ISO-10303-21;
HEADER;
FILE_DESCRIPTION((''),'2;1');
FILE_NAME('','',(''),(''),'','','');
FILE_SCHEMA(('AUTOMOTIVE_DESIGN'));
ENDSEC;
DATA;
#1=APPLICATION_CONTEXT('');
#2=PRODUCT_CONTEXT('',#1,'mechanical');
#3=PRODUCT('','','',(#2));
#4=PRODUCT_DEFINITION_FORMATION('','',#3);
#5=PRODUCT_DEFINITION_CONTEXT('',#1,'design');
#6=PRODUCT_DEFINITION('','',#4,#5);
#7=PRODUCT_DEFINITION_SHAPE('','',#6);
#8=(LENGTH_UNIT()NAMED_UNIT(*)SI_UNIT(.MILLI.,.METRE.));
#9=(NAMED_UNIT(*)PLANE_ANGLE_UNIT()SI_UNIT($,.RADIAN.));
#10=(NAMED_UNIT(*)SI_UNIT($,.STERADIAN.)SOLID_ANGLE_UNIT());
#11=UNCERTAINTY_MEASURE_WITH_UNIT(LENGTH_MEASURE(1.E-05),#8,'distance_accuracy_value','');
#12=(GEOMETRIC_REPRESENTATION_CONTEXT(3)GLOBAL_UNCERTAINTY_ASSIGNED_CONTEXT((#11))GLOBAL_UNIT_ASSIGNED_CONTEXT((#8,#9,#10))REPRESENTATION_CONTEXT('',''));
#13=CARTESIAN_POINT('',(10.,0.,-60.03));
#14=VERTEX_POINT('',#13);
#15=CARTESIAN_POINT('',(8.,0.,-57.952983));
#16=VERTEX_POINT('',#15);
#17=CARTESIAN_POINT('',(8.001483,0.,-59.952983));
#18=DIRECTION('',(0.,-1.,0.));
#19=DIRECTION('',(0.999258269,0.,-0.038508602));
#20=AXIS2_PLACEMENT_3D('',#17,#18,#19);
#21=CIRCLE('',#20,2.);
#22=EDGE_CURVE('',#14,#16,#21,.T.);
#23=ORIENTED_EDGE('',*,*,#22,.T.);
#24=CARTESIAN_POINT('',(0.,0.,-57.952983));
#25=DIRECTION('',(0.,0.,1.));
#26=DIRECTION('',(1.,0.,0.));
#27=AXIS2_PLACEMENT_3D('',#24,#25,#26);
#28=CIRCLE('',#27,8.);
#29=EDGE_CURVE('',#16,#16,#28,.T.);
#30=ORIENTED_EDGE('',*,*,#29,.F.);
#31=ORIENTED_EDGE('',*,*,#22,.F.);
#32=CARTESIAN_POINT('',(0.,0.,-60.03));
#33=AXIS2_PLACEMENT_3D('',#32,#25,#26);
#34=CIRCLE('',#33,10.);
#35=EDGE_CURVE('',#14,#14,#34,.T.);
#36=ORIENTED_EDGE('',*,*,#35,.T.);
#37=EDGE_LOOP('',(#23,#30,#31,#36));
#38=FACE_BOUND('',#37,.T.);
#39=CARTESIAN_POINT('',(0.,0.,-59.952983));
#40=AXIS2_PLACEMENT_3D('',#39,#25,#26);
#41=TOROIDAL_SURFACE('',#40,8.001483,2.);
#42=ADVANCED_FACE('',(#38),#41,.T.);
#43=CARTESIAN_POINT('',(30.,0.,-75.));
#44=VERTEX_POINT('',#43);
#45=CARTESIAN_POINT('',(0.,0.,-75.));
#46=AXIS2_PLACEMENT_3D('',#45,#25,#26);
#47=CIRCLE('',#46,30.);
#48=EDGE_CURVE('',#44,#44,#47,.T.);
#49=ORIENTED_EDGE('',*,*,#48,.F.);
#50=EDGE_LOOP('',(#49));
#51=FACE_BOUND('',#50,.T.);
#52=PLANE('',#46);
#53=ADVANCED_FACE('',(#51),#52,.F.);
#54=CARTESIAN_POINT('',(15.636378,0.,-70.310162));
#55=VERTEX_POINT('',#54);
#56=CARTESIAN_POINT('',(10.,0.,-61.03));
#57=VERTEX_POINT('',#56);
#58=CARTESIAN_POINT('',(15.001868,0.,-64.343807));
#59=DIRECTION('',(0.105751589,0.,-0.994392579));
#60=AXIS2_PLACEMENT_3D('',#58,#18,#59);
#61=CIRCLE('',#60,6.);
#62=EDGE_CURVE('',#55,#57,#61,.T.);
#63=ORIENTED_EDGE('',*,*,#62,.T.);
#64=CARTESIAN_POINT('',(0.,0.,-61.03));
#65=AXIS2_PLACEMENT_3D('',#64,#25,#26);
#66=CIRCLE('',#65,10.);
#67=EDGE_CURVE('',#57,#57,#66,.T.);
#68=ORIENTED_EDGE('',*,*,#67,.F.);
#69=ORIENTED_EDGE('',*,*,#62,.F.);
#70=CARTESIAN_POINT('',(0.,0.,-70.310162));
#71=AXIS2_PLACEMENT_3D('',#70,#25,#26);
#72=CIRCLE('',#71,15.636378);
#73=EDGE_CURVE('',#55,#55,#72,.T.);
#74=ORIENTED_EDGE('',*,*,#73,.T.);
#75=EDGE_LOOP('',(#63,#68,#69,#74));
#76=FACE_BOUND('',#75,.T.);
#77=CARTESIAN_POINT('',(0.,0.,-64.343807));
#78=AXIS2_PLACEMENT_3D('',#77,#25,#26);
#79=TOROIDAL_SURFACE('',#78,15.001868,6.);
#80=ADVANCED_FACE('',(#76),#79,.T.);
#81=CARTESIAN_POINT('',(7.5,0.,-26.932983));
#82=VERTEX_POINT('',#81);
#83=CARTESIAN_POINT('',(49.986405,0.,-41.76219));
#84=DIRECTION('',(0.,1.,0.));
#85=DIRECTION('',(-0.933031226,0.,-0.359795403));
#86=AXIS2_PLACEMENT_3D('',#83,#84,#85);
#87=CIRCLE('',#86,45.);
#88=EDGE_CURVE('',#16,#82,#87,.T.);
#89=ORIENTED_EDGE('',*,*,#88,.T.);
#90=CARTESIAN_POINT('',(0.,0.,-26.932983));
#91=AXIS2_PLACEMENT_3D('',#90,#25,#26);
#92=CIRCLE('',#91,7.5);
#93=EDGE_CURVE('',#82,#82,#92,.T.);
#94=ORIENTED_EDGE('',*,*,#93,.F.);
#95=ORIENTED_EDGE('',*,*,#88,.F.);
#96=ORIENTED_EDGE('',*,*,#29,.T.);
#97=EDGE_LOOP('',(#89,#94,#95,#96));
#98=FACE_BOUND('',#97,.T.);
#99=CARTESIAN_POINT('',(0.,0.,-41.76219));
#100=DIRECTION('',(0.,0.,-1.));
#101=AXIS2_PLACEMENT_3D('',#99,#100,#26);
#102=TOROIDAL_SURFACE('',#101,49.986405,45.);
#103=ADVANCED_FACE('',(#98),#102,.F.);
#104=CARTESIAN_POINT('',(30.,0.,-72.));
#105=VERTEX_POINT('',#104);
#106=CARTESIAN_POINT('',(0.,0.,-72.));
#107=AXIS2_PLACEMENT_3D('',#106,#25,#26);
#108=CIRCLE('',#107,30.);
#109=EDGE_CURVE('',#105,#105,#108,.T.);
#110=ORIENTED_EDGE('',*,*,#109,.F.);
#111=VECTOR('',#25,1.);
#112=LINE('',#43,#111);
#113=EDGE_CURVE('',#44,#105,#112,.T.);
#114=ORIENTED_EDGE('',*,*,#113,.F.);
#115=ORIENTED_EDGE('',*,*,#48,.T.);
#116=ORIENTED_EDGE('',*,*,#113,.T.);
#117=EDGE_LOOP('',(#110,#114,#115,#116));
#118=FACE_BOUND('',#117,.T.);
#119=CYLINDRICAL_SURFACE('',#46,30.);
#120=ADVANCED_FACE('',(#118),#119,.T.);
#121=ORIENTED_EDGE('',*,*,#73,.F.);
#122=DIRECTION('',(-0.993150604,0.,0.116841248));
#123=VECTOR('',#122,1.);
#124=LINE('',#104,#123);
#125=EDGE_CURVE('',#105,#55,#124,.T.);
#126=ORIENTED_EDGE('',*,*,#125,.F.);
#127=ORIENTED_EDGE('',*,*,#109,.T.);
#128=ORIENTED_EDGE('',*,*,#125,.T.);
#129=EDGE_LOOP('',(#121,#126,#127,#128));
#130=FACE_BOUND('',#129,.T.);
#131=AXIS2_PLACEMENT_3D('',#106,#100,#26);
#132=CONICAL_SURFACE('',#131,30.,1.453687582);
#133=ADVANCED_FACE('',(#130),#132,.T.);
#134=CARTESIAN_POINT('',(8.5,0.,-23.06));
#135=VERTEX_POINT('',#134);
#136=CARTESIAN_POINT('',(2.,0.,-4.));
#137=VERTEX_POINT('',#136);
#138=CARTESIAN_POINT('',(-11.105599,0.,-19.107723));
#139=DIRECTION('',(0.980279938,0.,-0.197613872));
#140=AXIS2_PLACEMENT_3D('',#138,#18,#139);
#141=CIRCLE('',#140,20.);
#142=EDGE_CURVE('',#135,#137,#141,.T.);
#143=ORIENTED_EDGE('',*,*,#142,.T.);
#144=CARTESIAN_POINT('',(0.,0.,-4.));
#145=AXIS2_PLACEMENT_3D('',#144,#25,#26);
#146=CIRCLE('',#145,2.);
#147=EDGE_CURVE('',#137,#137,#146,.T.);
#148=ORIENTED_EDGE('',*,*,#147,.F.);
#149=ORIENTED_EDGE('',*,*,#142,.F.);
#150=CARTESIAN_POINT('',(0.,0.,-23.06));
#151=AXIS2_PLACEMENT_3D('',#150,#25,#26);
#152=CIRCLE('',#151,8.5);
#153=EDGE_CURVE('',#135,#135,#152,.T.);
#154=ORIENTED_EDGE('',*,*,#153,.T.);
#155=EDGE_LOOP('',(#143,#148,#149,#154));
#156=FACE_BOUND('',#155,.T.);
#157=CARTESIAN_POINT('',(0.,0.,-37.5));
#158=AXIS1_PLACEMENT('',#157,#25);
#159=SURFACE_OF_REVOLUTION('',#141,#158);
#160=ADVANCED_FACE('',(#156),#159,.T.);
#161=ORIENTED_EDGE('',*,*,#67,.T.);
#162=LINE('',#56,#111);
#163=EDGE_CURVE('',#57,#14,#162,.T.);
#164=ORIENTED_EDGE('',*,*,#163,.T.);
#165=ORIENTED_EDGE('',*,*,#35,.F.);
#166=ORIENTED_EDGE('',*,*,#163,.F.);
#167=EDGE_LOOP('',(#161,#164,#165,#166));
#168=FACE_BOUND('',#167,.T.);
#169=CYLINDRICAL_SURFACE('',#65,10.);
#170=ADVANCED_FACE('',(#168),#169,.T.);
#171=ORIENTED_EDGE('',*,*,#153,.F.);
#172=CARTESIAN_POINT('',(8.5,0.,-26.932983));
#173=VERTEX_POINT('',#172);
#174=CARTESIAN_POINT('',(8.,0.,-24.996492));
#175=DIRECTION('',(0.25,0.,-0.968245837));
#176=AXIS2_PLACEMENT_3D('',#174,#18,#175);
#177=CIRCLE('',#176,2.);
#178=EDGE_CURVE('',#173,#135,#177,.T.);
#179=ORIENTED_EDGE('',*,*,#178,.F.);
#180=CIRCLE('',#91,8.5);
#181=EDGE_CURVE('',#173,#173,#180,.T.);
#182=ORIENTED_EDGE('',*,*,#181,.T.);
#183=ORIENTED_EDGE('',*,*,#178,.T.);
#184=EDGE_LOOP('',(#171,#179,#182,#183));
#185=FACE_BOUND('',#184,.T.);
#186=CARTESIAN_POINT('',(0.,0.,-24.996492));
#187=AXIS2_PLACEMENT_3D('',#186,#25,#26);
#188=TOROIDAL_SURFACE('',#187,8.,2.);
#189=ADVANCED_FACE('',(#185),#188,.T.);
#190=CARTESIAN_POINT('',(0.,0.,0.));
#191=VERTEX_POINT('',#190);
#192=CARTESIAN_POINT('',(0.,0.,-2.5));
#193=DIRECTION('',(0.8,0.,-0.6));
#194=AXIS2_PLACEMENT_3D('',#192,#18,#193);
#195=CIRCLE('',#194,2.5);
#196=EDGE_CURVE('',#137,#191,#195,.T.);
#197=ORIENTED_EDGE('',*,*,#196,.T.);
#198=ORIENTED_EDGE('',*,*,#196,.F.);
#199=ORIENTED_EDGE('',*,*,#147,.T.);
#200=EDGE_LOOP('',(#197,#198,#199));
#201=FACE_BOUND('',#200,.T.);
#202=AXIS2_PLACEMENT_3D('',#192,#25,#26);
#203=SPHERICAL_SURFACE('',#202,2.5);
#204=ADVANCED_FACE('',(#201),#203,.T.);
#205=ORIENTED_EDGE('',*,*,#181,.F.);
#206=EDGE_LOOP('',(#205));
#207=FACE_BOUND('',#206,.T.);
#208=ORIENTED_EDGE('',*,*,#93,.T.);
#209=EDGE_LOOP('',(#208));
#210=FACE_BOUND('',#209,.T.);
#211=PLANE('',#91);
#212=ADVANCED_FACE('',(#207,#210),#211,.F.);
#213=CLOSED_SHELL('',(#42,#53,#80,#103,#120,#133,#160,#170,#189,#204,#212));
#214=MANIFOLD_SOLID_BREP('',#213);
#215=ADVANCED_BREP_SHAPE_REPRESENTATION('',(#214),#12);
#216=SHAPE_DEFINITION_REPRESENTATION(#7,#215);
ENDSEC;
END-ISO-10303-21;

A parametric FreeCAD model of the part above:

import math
import FreeCAD as App
import Part
import Sketcher

V = App.Vector
Q = App.Units.Quantity

doc = App.newDocument("Part")
body = doc.addObject("PartDesign::Body", "Body")

sketch1 = body.newObject("Sketcher::SketchObject", "Sketch")
sketch1.AttachmentSupport = (doc.getObject("XZ_Plane"), [""])
sketch1.MapMode = "FlatFace"
sketch1.addGeometry([
    Part.LineSegment(V(7.5, -26.9, 0), V(8.5, -26.9, 0)),
    Part.ArcOfCircle(Part.Circle(V(8, -25, 0), V(0, 0, 1), 2), math.radians(-76), math.radians(76)),
    Part.ArcOfCircle(Part.Circle(V(-11.1, -19.1, 0), V(0, 0, 1), 20), math.radians(-11), math.radians(49)),
    Part.ArcOfCircle(Part.Circle(V(0, -2.5, 0), V(0, 0, 1), 2.5), math.radians(-37), math.radians(90)),
    Part.LineSegment(V(0, 0, 0), V(0, -75, 0)),
    Part.LineSegment(V(0, -75, 0), V(30, -75, 0)),
    Part.LineSegment(V(30, -75, 0), V(30, -72, 0)),
    Part.LineSegment(V(30, -72, 0), V(15.6, -70.3, 0)),
    Part.ArcOfCircle(Part.Circle(V(15, -64.3, 0), V(0, 0, 1), 6), math.radians(-84), math.radians(146)),
    Part.LineSegment(V(10, -61, 0), V(10, -60, 0)),
    Part.ArcOfCircle(Part.Circle(V(8, -60, 0), V(0, 0, 1), 2), math.radians(-2), math.radians(90)),
    Part.ArcOfCircle(Part.Circle(V(50, -41.8, 0), V(0, 0, 1), 45), math.radians(161), math.radians(201)),
], False)
sketch1.addConstraint([
    Sketcher.Constraint("Coincident", 0, 2, 1, 1),
    Sketcher.Constraint("Coincident", 1, 2, 2, 1),
    Sketcher.Constraint("Coincident", 2, 2, 3, 1),
    Sketcher.Constraint("Coincident", 3, 2, 4, 1),
    Sketcher.Constraint("Coincident", 4, 2, 5, 1),
    Sketcher.Constraint("Coincident", 5, 2, 6, 1),
    Sketcher.Constraint("Coincident", 6, 2, 7, 1),
    Sketcher.Constraint("Coincident", 7, 2, 8, 1),
    Sketcher.Constraint("Coincident", 8, 2, 9, 1),
    Sketcher.Constraint("Coincident", 9, 2, 10, 1),
    Sketcher.Constraint("Coincident", 10, 2, 11, 2),
    Sketcher.Constraint("Coincident", 11, 1, 0, 1),
    Sketcher.Constraint("Horizontal", 0),
    Sketcher.Constraint("Vertical", 4),
    Sketcher.Constraint("Horizontal", 5),
    Sketcher.Constraint("Vertical", 6),
    Sketcher.Constraint("Vertical", 9),
    Sketcher.Constraint("Coincident", 3, 2, -1, 1),
    Sketcher.Constraint("Equal", 1, 10),
    Sketcher.Constraint("PointOnObject", 3, 3, -2),
    Sketcher.Constraint("Vertical", 0, 2, 1, 2),
    Sketcher.Constraint("Vertical", 1, 3, 10, 2),
    Sketcher.Constraint("Equal", 0, 9),
    Sketcher.Constraint("Radius", 1, Q("2 mm")),
    Sketcher.Constraint("Radius", 2, Q("20 mm")),
    Sketcher.Constraint("Radius", 8, Q("6 mm")),
    Sketcher.Constraint("Radius", 11, Q("45 mm")),
    Sketcher.Constraint("Radius", 3, Q("2.5 mm")),
    Sketcher.Constraint("DistanceX", 0, 1, 0, 2, Q("1 mm")),
    Sketcher.Constraint("DistanceX", 5, 1, 5, 2, Q("30 mm")),
    Sketcher.Constraint("DistanceY", 4, 2, 4, 1, Q("75 mm")),
    Sketcher.Constraint("DistanceY", 6, 1, 6, 2, Q("3 mm")),
    Sketcher.Constraint("DistanceX", -1, 1, 1, 3, Q("8 mm")),
    Sketcher.Constraint("DistanceX", -1, 1, 2, 2, Q("2 mm")),
    Sketcher.Constraint("DistanceX", -1, 1, 8, 2, Q("10 mm")),
    Sketcher.Constraint("DistanceX", -1, 1, 0, 2, Q("8.5 mm")),
    Sketcher.Constraint("DistanceY", 1, 2, -1, 1, Q("23.06 mm")),
    Sketcher.Constraint("DistanceY", 8, 2, -1, 1, Q("61.03 mm")),
    Sketcher.Constraint("DistanceY", 10, 3, 0, 2, Q("33.019999 mm")),
    Sketcher.Constraint("DistanceX", -1, 1, 8, 3, Q("15.001868 mm")),
    Sketcher.Constraint("DistanceX", 8, 3, 7, 2, Q("0.63451 mm")),
])
revolution = body.newObject("PartDesign::Revolution", "Revolution")
revolution.Profile = sketch1
revolution.ReferenceAxis = (sketch1, ["V_Axis"])
revolution.Angle = 360

doc.recompute()
